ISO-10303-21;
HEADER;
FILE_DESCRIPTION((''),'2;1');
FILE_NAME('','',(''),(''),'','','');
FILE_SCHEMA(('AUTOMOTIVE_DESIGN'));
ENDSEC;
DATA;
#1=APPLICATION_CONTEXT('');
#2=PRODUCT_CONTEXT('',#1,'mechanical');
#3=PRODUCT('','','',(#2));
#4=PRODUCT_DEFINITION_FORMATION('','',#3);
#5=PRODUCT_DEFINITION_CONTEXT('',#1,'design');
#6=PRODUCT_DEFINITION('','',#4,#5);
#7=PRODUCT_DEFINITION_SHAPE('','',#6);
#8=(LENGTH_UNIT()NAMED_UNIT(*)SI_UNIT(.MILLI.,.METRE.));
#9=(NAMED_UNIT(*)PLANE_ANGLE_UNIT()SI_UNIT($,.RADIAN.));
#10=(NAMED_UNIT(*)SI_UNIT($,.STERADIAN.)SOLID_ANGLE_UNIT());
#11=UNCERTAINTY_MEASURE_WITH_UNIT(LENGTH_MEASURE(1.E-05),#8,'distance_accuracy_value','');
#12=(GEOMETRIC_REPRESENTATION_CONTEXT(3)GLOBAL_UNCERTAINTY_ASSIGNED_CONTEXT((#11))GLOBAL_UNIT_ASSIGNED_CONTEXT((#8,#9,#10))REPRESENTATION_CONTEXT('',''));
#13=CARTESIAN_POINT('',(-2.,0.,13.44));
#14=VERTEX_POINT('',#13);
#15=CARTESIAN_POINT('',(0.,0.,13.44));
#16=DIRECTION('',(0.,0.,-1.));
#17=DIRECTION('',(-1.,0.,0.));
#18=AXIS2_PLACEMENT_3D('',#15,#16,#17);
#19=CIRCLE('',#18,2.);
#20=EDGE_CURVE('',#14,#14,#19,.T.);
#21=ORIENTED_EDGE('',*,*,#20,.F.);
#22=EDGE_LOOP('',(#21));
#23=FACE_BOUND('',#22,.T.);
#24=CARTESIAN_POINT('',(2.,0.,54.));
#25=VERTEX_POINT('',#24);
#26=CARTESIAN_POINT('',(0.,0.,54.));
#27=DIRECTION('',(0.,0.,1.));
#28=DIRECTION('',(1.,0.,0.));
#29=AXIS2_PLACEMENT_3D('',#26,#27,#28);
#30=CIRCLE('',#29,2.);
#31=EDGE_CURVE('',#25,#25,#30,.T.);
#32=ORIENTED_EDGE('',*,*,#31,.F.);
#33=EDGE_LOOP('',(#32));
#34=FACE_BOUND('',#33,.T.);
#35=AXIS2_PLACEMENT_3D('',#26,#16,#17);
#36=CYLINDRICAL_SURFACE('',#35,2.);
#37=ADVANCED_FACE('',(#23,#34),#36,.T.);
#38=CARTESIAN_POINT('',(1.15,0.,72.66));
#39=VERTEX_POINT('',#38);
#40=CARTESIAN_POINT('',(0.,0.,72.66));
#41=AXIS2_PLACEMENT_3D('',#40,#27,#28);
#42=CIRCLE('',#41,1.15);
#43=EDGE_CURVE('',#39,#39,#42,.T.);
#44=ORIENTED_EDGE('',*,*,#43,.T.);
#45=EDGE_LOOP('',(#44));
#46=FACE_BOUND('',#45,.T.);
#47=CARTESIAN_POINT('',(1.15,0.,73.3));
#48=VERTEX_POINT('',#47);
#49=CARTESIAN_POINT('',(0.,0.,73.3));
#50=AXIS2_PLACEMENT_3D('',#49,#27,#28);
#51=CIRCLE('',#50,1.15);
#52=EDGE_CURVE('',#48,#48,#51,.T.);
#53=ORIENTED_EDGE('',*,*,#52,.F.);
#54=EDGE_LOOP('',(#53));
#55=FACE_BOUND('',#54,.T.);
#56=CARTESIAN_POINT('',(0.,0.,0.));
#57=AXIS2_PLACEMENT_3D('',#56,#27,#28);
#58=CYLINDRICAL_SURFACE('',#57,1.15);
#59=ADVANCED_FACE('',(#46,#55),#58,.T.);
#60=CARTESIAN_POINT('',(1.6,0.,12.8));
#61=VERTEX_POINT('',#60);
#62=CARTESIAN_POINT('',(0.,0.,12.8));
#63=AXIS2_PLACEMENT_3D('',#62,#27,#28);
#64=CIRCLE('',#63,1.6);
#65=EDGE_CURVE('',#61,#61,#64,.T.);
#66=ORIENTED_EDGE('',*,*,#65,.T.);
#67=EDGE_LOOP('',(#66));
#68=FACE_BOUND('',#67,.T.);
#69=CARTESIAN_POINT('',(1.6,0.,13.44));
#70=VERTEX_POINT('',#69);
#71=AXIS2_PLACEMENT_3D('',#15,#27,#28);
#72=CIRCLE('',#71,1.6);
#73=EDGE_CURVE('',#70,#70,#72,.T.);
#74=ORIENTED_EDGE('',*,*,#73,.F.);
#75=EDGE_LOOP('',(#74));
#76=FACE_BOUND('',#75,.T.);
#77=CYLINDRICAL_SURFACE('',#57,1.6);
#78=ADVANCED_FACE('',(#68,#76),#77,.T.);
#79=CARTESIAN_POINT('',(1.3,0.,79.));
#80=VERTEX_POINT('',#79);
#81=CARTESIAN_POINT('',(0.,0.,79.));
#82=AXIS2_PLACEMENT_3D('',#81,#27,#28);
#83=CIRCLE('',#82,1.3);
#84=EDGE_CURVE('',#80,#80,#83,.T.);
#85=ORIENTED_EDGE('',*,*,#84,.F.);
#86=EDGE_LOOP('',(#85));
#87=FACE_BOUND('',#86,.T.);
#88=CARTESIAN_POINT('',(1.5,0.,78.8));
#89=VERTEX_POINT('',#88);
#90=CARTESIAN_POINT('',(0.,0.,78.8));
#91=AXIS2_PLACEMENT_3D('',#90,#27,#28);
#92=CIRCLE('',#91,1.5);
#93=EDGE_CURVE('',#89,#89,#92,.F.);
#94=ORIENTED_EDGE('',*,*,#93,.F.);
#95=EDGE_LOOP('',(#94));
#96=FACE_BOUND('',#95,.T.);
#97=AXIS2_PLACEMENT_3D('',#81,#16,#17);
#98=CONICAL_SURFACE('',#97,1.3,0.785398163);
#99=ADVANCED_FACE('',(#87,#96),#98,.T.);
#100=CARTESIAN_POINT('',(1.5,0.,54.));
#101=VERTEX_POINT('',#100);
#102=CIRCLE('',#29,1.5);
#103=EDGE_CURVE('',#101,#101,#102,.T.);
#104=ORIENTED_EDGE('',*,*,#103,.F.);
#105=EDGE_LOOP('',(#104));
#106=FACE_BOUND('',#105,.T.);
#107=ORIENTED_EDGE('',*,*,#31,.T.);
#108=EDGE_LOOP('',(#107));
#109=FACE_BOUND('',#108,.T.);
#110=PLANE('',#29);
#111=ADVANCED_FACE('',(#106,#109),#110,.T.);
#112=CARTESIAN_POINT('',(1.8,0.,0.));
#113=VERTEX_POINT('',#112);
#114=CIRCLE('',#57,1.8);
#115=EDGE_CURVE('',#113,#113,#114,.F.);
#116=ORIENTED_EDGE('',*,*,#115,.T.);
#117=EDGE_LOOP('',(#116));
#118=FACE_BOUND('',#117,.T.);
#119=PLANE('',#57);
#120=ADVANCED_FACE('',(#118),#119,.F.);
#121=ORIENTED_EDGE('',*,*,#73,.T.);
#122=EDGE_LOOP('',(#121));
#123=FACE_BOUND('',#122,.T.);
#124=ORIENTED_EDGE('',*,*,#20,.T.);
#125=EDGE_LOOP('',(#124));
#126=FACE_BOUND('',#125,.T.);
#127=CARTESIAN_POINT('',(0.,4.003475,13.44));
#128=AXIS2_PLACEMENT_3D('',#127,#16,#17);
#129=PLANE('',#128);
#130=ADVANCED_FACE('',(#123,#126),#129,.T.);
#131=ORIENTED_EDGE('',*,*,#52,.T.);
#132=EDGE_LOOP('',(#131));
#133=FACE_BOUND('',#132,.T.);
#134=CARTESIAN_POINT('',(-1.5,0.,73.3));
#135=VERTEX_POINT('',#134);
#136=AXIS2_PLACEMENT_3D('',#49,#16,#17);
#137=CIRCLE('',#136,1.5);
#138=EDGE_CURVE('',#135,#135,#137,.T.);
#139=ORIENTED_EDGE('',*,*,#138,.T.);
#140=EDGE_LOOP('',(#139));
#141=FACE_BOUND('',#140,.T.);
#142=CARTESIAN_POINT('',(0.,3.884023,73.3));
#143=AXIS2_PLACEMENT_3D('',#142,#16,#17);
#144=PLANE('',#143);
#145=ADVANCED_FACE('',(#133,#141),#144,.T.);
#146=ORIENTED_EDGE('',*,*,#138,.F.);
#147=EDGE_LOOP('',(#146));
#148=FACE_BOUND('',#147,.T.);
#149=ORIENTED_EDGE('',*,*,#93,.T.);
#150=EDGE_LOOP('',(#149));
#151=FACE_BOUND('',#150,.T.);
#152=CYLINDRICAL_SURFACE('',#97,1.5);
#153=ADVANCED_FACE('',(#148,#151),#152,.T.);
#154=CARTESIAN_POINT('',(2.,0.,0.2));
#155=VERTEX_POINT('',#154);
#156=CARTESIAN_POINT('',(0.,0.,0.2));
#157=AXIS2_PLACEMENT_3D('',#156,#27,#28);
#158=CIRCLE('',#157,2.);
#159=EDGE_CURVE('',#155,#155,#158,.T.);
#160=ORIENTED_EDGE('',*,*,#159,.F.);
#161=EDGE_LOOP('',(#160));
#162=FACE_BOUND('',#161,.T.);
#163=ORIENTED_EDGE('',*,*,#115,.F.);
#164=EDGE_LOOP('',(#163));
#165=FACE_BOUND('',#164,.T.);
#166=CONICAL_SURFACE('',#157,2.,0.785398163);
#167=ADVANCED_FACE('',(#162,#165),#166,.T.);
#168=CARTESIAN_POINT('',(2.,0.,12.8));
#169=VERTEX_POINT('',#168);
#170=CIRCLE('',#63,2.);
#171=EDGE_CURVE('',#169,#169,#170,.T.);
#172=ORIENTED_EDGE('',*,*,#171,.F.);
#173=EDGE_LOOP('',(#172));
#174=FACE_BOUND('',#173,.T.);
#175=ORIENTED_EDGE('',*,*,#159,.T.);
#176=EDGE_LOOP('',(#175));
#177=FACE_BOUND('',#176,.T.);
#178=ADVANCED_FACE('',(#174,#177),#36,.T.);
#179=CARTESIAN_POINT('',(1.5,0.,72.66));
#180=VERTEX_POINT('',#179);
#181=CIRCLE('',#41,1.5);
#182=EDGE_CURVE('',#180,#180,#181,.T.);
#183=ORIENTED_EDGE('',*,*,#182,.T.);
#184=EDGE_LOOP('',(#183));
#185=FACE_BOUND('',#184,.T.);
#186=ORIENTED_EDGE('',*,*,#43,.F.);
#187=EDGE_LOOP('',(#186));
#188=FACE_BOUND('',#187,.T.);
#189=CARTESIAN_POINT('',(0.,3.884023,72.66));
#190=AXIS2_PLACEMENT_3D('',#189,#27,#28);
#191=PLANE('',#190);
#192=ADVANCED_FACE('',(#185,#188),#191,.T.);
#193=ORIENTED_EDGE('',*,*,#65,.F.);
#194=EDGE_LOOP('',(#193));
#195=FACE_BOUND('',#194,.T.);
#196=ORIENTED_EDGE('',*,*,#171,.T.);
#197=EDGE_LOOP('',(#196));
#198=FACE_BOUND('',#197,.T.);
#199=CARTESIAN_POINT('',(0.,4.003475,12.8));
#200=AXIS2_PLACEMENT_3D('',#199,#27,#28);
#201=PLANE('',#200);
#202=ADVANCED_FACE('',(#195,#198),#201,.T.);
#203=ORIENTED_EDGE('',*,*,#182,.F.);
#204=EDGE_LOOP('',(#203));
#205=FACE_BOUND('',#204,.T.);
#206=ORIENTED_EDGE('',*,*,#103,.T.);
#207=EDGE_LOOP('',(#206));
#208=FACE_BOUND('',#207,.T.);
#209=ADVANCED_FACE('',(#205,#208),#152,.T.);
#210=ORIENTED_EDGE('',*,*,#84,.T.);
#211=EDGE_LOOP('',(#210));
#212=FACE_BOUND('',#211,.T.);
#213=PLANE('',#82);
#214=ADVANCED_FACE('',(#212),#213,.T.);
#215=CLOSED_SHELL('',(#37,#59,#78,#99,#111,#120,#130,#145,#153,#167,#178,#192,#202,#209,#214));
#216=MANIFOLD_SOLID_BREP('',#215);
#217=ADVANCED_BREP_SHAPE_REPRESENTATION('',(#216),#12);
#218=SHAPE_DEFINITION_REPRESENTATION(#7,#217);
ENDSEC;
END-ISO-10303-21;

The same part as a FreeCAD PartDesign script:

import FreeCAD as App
import Part
import Sketcher
from FreeCAD import Vector


def edges_at(feature, points):
    """Names of the edges that pass closest to the given points."""
    edges = feature.Shape.Edges
    near = lambda p: min(range(len(edges)), key=lambda i: edges[i].distToShape(Part.Vertex(*p))[0])
    return sorted({f"Edge{near(p) + 1}" for p in points})


def add_polygon(sketch, points):
    """Adds a closed chain of lines whose ends are joined by coincident constraints."""
    first, n = sketch.GeometryCount, len(points)
    for a, b in zip(points, points[1:] + points[:1]):
        sketch.addGeometry(Part.LineSegment(App.Vector(*a, 0), App.Vector(*b, 0)), False)
    for i in range(n):
        sketch.addConstraint(Sketcher.Constraint("Coincident", first + i, 2, first + (i + 1) % n, 1))

doc = App.newDocument("Part")
params = doc.addObject("Spreadsheet::Sheet", "Params")
for row, (alias, value) in enumerate([
    ("sketch1_diameter", "4 mm"),
    ("pad1_length", "54 mm"),
    ("sketch2_diameter", "3 mm"),
    ("pad2_length", "25 mm"),
    ("chamfer_size", "0.2 mm"),
    ("sketch3_height", "0.64 mm"),
    ("groove_angle", "360 deg"),
], start=1):
    params.set(f"A{row}", alias)
    params.set(f"B{row}", "=" + value)
    params.setAlias(f"B{row}", alias)

body = doc.addObject("PartDesign::Body", "Body")

sketch1 = body.newObject("Sketcher::SketchObject", "Sketch")
sketch1.AttachmentSupport = (doc.getObject("XY_Plane"), [""])
sketch1.MapMode = "FlatFace"
sketch1.addGeometry(Part.Circle(Vector(0, 0, 0), Vector(0, 0, 1), 2), False)
sketch1.addConstraint([
    Sketcher.Constraint("Coincident", 0, 3, -1, 1),
    Sketcher.Constraint("Diameter", 0, 4.0),
])
sketch1.setExpression("Constraints[1]", "Params.sketch1_diameter")
pad1 = body.newObject("PartDesign::Pad", "Pad")
pad1.Profile = sketch1
pad1.setExpression("Length", "Params.pad1_length")

sketch2 = body.newObject("Sketcher::SketchObject", "Sketch001")
sketch2.AttachmentSupport = (doc.getObject("XY_Plane"), [""])
sketch2.MapMode = "FlatFace"
sketch2.AttachmentOffset = App.Placement(Vector(0, 0, 54), App.Rotation())
sketch2.addGeometry(Part.Circle(Vector(0, 0, 0), Vector(0, 0, 1), 1.5), False)
sketch2.addConstraint([
    Sketcher.Constraint("Coincident", 0, 3, -1, 1),
    Sketcher.Constraint("Diameter", 0, 3.0),
])
sketch2.setExpression("Constraints[1]", "Params.sketch2_diameter")
pad2 = body.newObject("PartDesign::Pad", "Pad001")
pad2.Profile = sketch2
pad2.setExpression("Length", "Params.pad2_length")
doc.recompute()

chamfer = body.newObject("PartDesign::Chamfer", "Chamfer")
chamfer.Base = (pad2, edges_at(pad2, [(-2, 0, 0), (-1.5, 0, 79)]))
chamfer.setExpression("Size", "Params.chamfer_size")

sketch3 = body.newObject("Sketcher::SketchObject", "Sketch002")
sketch3.AttachmentSupport = (doc.getObject("YZ_Plane"), [""])
sketch3.MapMode = "FlatFace"
add_polygon(sketch3, [(4, 13.4), (1.6, 13.4), (1.6, 12.8), (4, 12.8)])
add_polygon(sketch3, [(3.9, 73.3), (1.1, 73.3), (1.1, 72.7), (3.9, 72.7)])
sketch3.addConstraint([
    Sketcher.Constraint("Horizontal", 0),
    Sketcher.Constraint("Vertical", 1),
    Sketcher.Constraint("Horizontal", 2),
    Sketcher.Constraint("Vertical", 3),
    Sketcher.Constraint("Horizontal", 4),
    Sketcher.Constraint("Vertical", 5),
    Sketcher.Constraint("Horizontal", 6),
    Sketcher.Constraint("Vertical", 7),
    Sketcher.Constraint("Equal", 3, 5),
    Sketcher.Constraint("DistanceY", 1, 2, 1, 1, 0.64),
    Sketcher.Constraint("DistanceX", -1, 1, 0, 2, 1.6),
    Sketcher.Constraint("DistanceY", -1, 1, 1, 2, 12.8),
    Sketcher.Constraint("DistanceY", -1, 1, 4, 2, 73.3),
    Sketcher.Constraint("DistanceX", -1, 1, 4, 2, 1.15),
    Sketcher.Constraint("DistanceX", 0, 2, 0, 1, 2.403475),
    Sketcher.Constraint("DistanceX", 4, 2, 4, 1, 2.734023),
])
sketch3.setExpression("Constraints[17]", "Params.sketch3_height")
groove = body.newObject("PartDesign::Groove", "Groove")
groove.Profile = sketch3
groove.ReferenceAxis = (sketch3, ["V_Axis"])
groove.setExpression("Angle", "Params.groove_angle")

doc.recompute()
